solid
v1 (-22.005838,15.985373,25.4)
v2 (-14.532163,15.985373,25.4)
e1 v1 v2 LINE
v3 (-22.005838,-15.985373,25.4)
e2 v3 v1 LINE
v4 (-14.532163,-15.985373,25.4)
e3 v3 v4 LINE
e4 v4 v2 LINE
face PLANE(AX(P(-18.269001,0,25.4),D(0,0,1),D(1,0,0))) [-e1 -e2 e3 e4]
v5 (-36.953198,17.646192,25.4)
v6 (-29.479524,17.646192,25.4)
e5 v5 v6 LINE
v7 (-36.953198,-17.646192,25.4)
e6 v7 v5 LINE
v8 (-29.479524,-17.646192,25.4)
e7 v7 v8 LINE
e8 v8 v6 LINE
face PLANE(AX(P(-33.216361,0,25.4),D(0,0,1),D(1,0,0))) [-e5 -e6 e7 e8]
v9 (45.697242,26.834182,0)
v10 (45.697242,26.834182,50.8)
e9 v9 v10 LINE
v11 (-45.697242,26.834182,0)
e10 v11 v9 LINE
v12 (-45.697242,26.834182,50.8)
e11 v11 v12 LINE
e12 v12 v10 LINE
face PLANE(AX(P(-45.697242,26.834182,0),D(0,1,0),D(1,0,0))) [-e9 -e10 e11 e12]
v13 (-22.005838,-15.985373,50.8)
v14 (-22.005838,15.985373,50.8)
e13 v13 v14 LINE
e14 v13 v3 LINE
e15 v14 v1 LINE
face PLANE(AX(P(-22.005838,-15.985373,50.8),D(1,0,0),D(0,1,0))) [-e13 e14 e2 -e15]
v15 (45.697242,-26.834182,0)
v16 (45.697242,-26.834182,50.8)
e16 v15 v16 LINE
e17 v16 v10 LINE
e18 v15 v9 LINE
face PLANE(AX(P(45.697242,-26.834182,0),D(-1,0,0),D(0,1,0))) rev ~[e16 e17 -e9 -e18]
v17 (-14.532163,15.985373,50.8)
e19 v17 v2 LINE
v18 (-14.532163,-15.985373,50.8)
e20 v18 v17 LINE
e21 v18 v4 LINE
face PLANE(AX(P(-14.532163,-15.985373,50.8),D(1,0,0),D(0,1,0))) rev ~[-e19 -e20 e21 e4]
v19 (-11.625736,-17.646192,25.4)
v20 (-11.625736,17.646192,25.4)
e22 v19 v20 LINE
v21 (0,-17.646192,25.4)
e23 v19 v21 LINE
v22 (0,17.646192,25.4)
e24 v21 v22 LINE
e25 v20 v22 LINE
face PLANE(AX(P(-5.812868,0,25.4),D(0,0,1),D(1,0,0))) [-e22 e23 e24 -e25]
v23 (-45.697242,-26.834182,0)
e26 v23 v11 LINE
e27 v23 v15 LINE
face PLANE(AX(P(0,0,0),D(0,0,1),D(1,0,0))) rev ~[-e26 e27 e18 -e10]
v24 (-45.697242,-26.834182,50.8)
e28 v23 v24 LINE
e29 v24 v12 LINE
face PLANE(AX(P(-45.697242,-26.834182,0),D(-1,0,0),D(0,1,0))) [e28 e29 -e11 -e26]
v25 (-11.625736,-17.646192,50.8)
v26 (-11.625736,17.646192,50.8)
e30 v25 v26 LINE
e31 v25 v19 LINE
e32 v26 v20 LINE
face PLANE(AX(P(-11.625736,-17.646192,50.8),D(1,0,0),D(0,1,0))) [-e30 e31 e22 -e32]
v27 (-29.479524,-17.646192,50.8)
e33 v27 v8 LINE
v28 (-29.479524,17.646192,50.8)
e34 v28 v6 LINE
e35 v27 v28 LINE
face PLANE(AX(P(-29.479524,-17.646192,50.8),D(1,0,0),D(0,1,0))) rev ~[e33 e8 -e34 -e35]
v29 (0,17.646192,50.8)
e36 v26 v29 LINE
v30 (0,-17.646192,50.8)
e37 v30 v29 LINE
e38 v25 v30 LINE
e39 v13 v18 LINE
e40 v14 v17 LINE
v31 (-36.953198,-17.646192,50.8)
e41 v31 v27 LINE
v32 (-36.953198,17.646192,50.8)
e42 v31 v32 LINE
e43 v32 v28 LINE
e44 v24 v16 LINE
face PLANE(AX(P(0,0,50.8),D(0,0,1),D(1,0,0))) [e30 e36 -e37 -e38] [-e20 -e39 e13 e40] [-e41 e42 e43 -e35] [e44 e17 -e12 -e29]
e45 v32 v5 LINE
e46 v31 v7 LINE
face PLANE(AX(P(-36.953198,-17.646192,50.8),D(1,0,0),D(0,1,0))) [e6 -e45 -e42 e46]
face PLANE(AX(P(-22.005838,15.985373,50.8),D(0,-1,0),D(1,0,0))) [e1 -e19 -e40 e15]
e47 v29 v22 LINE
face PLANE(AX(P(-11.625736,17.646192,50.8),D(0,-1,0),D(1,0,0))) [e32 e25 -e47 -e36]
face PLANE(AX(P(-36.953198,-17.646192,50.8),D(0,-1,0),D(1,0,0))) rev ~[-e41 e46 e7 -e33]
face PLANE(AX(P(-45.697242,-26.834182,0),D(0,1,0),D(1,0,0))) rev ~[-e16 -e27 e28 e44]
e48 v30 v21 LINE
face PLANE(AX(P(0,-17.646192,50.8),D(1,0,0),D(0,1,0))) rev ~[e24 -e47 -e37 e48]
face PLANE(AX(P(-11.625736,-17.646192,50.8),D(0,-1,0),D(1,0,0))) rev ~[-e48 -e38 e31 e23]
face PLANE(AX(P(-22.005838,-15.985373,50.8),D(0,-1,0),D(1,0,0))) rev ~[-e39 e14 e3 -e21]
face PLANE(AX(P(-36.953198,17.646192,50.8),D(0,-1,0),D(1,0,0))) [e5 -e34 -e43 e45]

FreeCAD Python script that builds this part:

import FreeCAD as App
import Part
import Sketcher

V = App.Vector
Q = App.Units.Quantity

doc = App.newDocument("Part")
body = doc.addObject("PartDesign::Body", "Body")

# Sketch on XY plane
sketch1 = body.newObject("Sketcher::SketchObject", "Sketch")
sketch1.AttachmentSupport = (doc.getObject("XY_Plane"), [""])
sketch1.MapMode = "FlatFace"
sketch1.addGeometry([
    Part.LineSegment(V(-45.697242, 26.834182, 0), V(-45.697242, -26.834182, 0)),
    Part.LineSegment(V(-45.697242, -26.834182, 0), V(45.697242, -26.834182, 0)),
    Part.LineSegment(V(45.697242, -26.834182, 0), V(45.697242, 26.834182, 0)),
    Part.LineSegment(V(45.697242, 26.834182, 0), V(-45.697242, 26.834182, 0)),
], False)
sketch1.addConstraint([
    Sketcher.Constraint("Coincident", 0, 2, 1, 1),
    Sketcher.Constraint("Coincident", 1, 2, 2, 1),
    Sketcher.Constraint("Coincident", 2, 2, 3, 1),
    Sketcher.Constraint("Coincident", 3, 2, 0, 1),
    Sketcher.Constraint("Vertical", 0),
    Sketcher.Constraint("Horizontal", 1),
    Sketcher.Constraint("Vertical", 2),
    Sketcher.Constraint("Horizontal", 3),
    Sketcher.Constraint("Symmetric", 0, 2, 2, 2, -1, 1),
    Sketcher.Constraint("DistanceX", 1, 1, 1, 2, Q("91.394484 mm")),
    Sketcher.Constraint("DistanceY", 0, 2, 0, 1, Q("53.668364 mm")),
])
pad1 = body.newObject("PartDesign::Pad", "Pad")
pad1.Profile = sketch1
pad1.Length = Q("2 in")

# Sketch on XY plane
sketch2 = body.newObject("Sketcher::SketchObject", "Sketch001")
sketch2.AttachmentSupport = (doc.getObject("XY_Plane"), [""])
sketch2.MapMode = "FlatFace"
sketch2.AttachmentOffset = App.Placement(V(0, 0, 2 * 25.4), App.Rotation())
sketch2.addGeometry([
    Part.LineSegment(V(-36.953198, 17.646192, 0), V(-36.953198, -17.646192, 0)),  # 0
    Part.LineSegment(V(-36.953198, -17.646192, 0), V(-29.479524, -17.646192, 0)),  # 1
    Part.LineSegment(V(-29.479524, -17.646192, 0), V(-29.479524, 17.646192, 0)),  # 2
    Part.LineSegment(V(-29.479524, 17.646192, 0), V(-36.953198, 17.646192, 0)),  # 3
    Part.LineSegment(V(-22.005838, 15.985373, 0), V(-22.005838, -15.985373, 0)),  # 4
    Part.LineSegment(V(-22.005838, -15.985373, 0), V(-14.532163, -15.985373, 0)),  # 5
    Part.LineSegment(V(-14.532163, -15.985373, 0), V(-14.532163, 15.985373, 0)),  # 6
    Part.LineSegment(V(-14.532163, 15.985373, 0), V(-22.005838, 15.985373, 0)),  # 7
    Part.LineSegment(V(-11.625736, 17.646192, 0), V(-11.625736, -17.646192, 0)),  # 8
    Part.LineSegment(V(-11.625736, -17.646192, 0), V(0, -17.646192, 0)),  # 9
    Part.LineSegment(V(0, -17.646192, 0), V(0, 17.646192, 0)),  # 10
    Part.LineSegment(V(0, 17.646192, 0), V(-11.625736, 17.646192, 0)),  # 11
], False)
sketch2.addConstraint([
    Sketcher.Constraint("Coincident", 0, 2, 1, 1),
    Sketcher.Constraint("Coincident", 1, 2, 2, 1),
    Sketcher.Constraint("Coincident", 2, 2, 3, 1),
    Sketcher.Constraint("Coincident", 3, 2, 0, 1),
    Sketcher.Constraint("Coincident", 4, 2, 5, 1),
    Sketcher.Constraint("Coincident", 5, 2, 6, 1),
    Sketcher.Constraint("Coincident", 6, 2, 7, 1),
    Sketcher.Constraint("Coincident", 7, 2, 4, 1),
    Sketcher.Constraint("Coincident", 8, 2, 9, 1),
    Sketcher.Constraint("Coincident", 9, 2, 10, 1),
    Sketcher.Constraint("Coincident", 10, 2, 11, 1),
    Sketcher.Constraint("Coincident", 11, 2, 8, 1),
    Sketcher.Constraint("Vertical", 0),
    Sketcher.Constraint("Horizontal", 1),
    Sketcher.Constraint("Vertical", 2),
    Sketcher.Constraint("Horizontal", 3),
    Sketcher.Constraint("Vertical", 4),
    Sketcher.Constraint("Horizontal", 5),
    Sketcher.Constraint("Vertical", 6),
    Sketcher.Constraint("Horizontal", 7),
    Sketcher.Constraint("Vertical", 8),
    Sketcher.Constraint("Horizontal", 9),
    Sketcher.Constraint("Vertical", 10),
    Sketcher.Constraint("Horizontal", 11),
    Sketcher.Constraint("Symmetric", 9, 2, 10, 2, -1, 1),
    Sketcher.Constraint("Horizontal", 1, 2, 8, 2),
    Sketcher.Constraint("Horizontal", 3, 2, 10, 2),
    Sketcher.Constraint("Equal", 3, 5),
    Sketcher.Constraint("DistanceX", 1, 1, 1, 2, Q("7.473674 mm")),
    Sketcher.Constraint("DistanceX", 9, 1, 9, 2, Q("11.625736 mm")),
    Sketcher.Constraint("DistanceY", 0, 2, 0, 1, Q("35.292384 mm")),
    Sketcher.Constraint("DistanceY", 4, 2, 4, 1, Q("31.970746 mm")),
    Sketcher.Constraint("DistanceX", 4, 2, -1, 1, Q("22.005838 mm")),
    Sketcher.Constraint("DistanceY", 1, 2, 4, 2, Q("1.660819 mm")),
    Sketcher.Constraint("DistanceX", 0, 2, 4, 2, Q("14.94736 mm")),
])
pocket1 = body.newObject("PartDesign::Pocket", "Pocket")
pocket1.Profile = sketch2
pocket1.Length = Q("1 in")

doc.recompute()
